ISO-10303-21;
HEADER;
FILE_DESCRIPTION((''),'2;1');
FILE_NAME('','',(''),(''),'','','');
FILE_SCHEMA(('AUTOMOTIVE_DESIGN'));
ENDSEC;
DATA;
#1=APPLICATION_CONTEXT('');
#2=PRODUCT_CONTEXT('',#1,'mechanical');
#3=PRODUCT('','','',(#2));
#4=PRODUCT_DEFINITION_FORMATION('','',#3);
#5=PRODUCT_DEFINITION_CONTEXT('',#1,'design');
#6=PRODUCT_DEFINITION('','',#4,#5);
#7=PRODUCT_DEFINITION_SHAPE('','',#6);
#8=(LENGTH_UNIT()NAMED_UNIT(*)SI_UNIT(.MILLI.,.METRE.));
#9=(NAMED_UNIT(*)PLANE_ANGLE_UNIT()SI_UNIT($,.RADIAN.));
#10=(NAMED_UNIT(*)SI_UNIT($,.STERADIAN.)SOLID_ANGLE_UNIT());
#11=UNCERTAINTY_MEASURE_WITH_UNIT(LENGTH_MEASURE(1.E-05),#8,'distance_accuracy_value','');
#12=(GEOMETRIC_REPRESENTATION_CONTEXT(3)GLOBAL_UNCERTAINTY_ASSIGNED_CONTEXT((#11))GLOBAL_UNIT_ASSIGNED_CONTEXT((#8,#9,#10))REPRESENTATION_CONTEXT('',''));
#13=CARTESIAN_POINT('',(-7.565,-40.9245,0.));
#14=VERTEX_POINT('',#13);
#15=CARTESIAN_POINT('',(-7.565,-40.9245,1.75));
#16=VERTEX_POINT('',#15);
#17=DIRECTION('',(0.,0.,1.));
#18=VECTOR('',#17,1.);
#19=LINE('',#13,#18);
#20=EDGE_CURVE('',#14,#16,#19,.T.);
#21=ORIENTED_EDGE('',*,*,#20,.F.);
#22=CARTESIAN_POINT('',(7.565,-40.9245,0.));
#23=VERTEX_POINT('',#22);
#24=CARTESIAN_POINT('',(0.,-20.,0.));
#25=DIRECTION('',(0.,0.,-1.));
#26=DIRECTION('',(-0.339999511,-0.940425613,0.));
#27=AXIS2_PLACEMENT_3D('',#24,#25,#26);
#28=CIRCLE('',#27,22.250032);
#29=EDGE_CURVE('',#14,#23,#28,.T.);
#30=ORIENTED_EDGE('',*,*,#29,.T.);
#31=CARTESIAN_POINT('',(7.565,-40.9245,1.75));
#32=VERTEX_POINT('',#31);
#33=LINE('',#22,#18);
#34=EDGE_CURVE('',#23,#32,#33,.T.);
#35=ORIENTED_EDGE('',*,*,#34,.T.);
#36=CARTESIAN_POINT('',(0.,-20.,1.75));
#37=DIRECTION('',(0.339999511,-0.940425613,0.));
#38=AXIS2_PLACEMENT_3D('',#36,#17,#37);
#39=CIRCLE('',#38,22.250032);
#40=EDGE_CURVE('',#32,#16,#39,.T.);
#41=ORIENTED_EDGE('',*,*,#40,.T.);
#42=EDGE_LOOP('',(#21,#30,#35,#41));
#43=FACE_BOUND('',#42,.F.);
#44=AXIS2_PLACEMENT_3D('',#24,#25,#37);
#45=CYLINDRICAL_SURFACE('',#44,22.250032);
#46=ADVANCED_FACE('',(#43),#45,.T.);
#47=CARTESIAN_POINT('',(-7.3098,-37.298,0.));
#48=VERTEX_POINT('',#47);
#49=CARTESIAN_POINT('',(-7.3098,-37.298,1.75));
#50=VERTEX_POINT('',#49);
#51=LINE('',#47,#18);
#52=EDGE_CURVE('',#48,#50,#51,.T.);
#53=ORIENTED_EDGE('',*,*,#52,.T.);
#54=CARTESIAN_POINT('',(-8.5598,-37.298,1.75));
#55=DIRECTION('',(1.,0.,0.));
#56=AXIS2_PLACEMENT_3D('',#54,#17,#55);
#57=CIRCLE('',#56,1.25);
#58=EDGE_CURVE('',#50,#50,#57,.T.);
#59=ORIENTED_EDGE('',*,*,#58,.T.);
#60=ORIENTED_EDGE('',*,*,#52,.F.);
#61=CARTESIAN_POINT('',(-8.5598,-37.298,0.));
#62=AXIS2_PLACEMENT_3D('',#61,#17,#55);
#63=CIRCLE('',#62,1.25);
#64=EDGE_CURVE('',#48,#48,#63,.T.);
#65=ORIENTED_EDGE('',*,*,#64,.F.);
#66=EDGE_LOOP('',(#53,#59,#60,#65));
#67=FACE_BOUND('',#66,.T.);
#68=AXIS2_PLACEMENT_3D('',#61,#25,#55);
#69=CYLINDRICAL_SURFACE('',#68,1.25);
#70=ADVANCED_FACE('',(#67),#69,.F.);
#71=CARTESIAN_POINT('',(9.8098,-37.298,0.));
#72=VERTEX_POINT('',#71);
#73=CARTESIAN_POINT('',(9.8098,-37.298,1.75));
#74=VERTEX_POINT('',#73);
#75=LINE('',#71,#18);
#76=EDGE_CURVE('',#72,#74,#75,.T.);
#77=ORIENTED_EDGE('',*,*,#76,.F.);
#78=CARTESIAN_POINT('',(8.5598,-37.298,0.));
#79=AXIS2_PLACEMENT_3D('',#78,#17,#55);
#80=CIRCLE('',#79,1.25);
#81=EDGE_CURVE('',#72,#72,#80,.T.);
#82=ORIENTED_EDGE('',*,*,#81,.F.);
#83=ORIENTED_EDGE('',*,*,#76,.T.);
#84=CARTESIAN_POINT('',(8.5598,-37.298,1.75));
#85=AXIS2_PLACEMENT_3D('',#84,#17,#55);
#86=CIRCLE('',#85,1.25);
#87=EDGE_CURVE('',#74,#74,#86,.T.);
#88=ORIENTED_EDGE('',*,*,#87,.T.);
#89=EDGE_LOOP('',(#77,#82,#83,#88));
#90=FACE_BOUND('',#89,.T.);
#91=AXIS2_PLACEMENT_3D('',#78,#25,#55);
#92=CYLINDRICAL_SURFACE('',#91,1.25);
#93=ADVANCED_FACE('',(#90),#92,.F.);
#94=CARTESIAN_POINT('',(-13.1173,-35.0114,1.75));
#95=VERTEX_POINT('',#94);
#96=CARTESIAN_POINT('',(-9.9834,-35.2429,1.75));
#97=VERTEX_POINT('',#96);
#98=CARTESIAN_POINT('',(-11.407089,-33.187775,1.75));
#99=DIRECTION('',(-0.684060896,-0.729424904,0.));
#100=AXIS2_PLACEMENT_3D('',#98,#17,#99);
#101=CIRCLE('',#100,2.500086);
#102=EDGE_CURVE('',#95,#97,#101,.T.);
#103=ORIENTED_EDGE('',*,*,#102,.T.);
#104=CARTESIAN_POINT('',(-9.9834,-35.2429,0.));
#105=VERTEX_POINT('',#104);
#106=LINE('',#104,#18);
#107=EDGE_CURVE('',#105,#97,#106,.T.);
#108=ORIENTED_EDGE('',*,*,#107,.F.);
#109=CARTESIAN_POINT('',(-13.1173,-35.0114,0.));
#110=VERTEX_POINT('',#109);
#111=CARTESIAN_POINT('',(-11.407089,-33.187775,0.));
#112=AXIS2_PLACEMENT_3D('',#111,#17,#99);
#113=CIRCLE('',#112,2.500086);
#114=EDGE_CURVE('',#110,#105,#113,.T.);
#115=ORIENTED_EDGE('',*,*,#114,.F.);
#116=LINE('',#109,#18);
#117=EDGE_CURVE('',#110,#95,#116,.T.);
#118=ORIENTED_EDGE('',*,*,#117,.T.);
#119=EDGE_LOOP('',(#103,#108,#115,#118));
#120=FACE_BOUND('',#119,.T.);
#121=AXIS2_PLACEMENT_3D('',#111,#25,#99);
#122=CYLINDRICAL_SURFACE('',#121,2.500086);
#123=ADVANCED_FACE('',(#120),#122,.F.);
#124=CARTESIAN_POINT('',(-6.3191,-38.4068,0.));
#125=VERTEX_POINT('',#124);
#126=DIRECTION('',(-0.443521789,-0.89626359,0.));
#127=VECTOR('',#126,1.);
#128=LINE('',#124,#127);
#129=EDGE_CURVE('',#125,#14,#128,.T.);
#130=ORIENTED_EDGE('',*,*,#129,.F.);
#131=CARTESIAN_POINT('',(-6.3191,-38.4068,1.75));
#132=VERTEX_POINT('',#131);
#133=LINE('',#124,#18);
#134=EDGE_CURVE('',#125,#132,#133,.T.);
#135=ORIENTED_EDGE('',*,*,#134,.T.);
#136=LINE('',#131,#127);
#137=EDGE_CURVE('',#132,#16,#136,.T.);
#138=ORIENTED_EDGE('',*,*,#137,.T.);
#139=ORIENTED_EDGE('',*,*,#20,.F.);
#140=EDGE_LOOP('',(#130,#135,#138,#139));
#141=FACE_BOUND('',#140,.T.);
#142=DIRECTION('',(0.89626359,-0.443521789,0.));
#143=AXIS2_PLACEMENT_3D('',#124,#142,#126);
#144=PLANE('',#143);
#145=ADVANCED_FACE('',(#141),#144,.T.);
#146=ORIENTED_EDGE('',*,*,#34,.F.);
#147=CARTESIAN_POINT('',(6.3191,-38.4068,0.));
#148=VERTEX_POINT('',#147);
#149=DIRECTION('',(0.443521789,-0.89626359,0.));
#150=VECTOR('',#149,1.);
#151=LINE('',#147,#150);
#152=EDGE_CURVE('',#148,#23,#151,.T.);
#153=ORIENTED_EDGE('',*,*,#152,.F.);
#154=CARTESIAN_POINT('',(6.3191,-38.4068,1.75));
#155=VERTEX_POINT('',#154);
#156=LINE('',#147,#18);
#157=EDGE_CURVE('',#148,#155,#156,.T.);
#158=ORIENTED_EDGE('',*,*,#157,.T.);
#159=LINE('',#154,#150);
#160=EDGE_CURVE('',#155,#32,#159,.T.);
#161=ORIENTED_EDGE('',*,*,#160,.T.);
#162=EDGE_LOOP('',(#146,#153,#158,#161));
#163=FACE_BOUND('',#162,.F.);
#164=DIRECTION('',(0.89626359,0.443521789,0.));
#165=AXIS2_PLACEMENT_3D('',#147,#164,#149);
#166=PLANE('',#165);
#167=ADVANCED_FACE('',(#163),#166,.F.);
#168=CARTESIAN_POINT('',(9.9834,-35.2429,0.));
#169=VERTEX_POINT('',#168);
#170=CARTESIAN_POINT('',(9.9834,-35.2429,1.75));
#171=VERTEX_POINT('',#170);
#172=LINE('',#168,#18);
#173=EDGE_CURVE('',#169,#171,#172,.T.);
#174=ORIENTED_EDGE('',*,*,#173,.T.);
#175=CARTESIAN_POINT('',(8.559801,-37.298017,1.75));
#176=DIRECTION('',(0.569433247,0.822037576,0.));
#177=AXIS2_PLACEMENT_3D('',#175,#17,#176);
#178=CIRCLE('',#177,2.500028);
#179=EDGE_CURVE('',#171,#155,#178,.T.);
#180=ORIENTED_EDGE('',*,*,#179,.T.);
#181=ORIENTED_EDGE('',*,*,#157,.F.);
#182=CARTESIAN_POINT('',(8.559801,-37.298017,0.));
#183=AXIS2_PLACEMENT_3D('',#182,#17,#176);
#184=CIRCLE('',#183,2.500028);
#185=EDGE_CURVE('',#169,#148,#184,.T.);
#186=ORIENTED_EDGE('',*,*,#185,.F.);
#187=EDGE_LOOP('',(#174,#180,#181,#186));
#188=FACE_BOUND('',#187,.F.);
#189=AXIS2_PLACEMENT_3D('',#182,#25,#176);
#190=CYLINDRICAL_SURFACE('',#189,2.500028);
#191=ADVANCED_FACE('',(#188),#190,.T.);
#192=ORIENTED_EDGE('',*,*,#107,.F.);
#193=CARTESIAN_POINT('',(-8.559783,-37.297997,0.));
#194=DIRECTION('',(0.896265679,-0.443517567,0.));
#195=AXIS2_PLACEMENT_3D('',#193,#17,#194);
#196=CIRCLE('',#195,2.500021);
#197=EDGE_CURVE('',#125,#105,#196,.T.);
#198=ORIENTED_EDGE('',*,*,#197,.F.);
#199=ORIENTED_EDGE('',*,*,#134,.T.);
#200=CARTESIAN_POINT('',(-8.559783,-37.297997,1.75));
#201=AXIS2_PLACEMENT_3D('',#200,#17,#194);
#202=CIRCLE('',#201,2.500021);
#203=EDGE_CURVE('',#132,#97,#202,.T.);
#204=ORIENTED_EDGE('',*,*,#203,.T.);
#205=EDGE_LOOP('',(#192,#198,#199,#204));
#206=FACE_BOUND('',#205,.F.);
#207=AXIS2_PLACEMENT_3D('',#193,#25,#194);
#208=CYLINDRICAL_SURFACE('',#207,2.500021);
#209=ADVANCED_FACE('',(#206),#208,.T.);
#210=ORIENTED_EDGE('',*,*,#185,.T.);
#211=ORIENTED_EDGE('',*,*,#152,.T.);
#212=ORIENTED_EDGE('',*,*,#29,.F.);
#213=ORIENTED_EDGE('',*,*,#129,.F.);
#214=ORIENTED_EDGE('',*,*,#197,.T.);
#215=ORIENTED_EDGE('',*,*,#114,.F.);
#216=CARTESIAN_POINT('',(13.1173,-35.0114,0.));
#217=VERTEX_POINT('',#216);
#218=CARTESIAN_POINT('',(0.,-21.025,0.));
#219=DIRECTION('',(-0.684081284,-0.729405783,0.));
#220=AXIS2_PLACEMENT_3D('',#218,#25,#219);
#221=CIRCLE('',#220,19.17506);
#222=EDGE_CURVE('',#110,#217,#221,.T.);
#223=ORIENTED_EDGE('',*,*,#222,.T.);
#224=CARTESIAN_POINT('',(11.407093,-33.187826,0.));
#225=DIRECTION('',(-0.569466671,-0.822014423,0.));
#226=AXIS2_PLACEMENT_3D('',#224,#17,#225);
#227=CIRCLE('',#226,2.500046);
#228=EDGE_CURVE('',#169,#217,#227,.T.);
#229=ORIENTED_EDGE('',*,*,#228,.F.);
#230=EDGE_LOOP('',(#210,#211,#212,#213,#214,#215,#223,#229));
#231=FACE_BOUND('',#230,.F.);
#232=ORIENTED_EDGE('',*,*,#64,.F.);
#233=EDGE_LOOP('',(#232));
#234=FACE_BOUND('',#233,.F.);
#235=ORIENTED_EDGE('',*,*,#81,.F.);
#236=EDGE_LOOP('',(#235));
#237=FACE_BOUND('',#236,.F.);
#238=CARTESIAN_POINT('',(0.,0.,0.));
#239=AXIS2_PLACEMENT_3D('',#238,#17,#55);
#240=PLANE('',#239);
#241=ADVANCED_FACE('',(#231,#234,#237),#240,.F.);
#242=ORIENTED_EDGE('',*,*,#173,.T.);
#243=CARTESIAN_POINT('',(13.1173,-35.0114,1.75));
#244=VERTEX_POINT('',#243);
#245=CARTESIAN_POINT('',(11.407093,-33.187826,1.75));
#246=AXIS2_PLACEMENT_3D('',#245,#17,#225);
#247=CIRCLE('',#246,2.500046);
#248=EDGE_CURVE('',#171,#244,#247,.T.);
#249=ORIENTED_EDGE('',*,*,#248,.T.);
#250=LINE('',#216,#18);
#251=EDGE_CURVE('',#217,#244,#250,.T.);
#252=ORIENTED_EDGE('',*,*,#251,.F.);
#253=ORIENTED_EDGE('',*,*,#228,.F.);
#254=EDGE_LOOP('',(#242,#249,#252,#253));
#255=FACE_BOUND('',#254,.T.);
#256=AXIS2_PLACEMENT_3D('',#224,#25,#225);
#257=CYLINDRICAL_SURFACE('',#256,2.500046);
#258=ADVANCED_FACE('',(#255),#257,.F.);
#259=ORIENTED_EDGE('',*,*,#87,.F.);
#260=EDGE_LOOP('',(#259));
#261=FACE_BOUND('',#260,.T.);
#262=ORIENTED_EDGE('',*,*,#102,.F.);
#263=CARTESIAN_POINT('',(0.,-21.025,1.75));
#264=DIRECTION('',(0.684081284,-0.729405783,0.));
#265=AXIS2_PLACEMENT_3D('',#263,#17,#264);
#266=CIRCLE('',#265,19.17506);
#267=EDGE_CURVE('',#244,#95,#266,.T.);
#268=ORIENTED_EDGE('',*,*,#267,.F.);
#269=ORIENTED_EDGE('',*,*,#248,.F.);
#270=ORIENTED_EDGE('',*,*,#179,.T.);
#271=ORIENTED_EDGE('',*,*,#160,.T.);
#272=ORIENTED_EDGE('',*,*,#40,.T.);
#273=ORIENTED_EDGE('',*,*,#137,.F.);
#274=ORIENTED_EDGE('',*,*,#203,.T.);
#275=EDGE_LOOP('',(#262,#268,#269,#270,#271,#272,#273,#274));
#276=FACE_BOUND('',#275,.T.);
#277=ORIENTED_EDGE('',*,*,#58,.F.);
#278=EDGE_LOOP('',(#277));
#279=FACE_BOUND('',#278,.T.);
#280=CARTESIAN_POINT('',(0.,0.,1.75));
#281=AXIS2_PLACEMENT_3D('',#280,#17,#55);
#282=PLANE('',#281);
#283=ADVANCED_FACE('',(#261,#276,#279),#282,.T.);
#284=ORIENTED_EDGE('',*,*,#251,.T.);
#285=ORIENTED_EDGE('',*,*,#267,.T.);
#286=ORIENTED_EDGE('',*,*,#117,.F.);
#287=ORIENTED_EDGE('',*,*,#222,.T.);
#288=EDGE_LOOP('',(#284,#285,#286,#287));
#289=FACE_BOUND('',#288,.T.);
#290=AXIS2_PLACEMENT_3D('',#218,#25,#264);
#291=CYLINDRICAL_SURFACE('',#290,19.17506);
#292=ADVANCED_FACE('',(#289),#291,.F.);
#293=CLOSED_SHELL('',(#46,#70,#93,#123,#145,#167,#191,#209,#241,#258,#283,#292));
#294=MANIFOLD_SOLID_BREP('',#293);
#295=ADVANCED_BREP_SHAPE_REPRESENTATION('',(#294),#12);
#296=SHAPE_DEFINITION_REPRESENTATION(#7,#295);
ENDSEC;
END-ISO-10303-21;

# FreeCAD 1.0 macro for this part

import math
import FreeCAD as App
import Part
import Sketcher

V = App.Vector
Q = App.Units.Quantity

doc = App.newDocument("Part")
params = doc.addObject("Spreadsheet::Sheet", "Params")
for row, (alias, value) in enumerate([
    ("sketch1_diameter", "2.5 mm"),
    ("sketch1_radius", "2.5 mm"),
    ("sketch1_radius2", "22.25 mm"),
    ("pad1_length", "1.75 mm"),
], start=1):
    params.set(f"A{row}", alias)
    params.set(f"B{row}", "=" + value)
    params.setAlias(f"B{row}", alias)

body = doc.addObject("PartDesign::Body", "Body")

# Sketch on XY plane
sketch1 = body.newObject("Sketcher::SketchObject", "Sketch")
sketch1.AttachmentSupport = (doc.getObject("XY_Plane"), [""])
sketch1.MapMode = "FlatFace"
sketch1.addGeometry(Part.ArcOfCircle(Part.Circle(V(11.4071, -33.1878, 0), V(0, 0, 1), 2.500072), math.radians(-124.712837), math.radians(-46.837997)), False)
sketch1.addGeometry(Part.ArcOfCircle(Part.Circle(V(8.5598, -37.298, 0), V(0, 0, 1), 2.500015), math.radians(55.289047), math.radians(206.328293)), False)
sketch1.addGeometry(Part.LineSegment(V(6.3191, -38.4068, 0), V(7.565, -40.9245, 0)), False)
sketch1.addGeometry(Part.ArcOfCircle(Part.Circle(V(0, -20, 0), V(0, 0, 1), 22.250032), math.radians(-70.123156), math.radians(250.123156)), False)
sketch1.addGeometry(Part.LineSegment(V(-7.565, -40.9245, 0), V(-6.3191, -38.4068, 0)), False)
sketch1.addGeometry(Part.ArcOfCircle(Part.Circle(V(-8.5598, -37.298, 0), V(0, 0, 1), 2.500035), math.radians(-26.328293), math.radians(124.710953)), False)
sketch1.addGeometry(Part.ArcOfCircle(Part.Circle(V(-11.4071, -33.1878, 0), V(0, 0, 1), 2.50006), math.radians(-133.162003), math.radians(-55.287163)), False)
sketch1.addGeometry(Part.ArcOfCircle(Part.Circle(V(0, -21.025, 0), V(0, 0, 1), 19.17506), math.radians(-46.836602), math.radians(226.836602)), False)
sketch1.addGeometry(Part.Circle(V(8.5598, -37.298, 0), V(0, 0, 1), 1.25), False)
sketch1.addGeometry(Part.Circle(V(-8.5598, -37.298, 0), V(0, 0, 1), 1.25), False)
sketch1.addConstraint(Sketcher.Constraint("Tangent", 0, 1, 1, 1))
sketch1.addConstraint(Sketcher.Constraint("Tangent", 1, 2, 2, 1))
sketch1.addConstraint(Sketcher.Constraint("Coincident", 2, 2, 3, 1))
sketch1.addConstraint(Sketcher.Constraint("Coincident", 3, 2, 4, 1))
sketch1.addConstraint(Sketcher.Constraint("Tangent", 4, 2, 5, 1))
sketch1.addConstraint(Sketcher.Constraint("Tangent", 5, 2, 6, 2))
sketch1.addConstraint(Sketcher.Constraint("Tangent", 6, 1, 7, 2))
sketch1.addConstraint(Sketcher.Constraint("Tangent", 7, 1, 0, 2))
sketch1.addConstraint(Sketcher.Constraint("Coincident", 8, 3, 1, 3))
sketch1.addConstraint(Sketcher.Constraint("Coincident", 9, 3, 5, 3))
sketch1.addConstraint(Sketcher.Constraint("Equal", 0, 1))
sketch1.addConstraint(Sketcher.Constraint("Equal", 1, 5))
sketch1.addConstraint(Sketcher.Constraint("Equal", 5, 6))
sketch1.addConstraint(Sketcher.Constraint("Equal", 8, 9))
sketch1.addConstraint(Sketcher.Constraint("Symmetric", 1, 3, 5, 3, -2))
sketch1.addConstraint(Sketcher.Constraint("Symmetric", 2, 2, 3, 2, -2))
sketch1.addConstraint(Sketcher.Constraint("PointOnObject", 7, 3, -2))
sketch1.addConstraint(Sketcher.Constraint("Diameter", 8, Q("2.5 mm")))
sketch1.addConstraint(Sketcher.Constraint("Radius", 0, Q("2.5 mm")))
sketch1.addConstraint(Sketcher.Constraint("Radius", 3, Q("22.25 mm")))
sketch1.addConstraint(Sketcher.Constraint("DistanceY", 3, 3, -1, 1, Q("20 mm")))
sketch1.addConstraint(Sketcher.Constraint("DistanceX", -1, 1, 2, 2, Q("7.565 mm")))
sketch1.addConstraint(Sketcher.Constraint("Radius", 7, Q("19.175 mm")))
sketch1.addConstraint(Sketcher.Constraint("DistanceY", 7, 3, 3, 3, Q("1.025 mm")))
sketch1.addConstraint(Sketcher.Constraint("Angle", 2, Q("-63.6712 deg")))
sketch1.addConstraint(Sketcher.Constraint("Distance", 2, Q("2.809 mm")))
sketch1.setExpression("Constraints[17]", "Params.sketch1_diameter")
sketch1.setExpression("Constraints[18]", "Params.sketch1_radius")
sketch1.setExpression("Constraints[19]", "Params.sketch1_radius2")
pad1 = body.newObject("PartDesign::Pad", "Pad")
pad1.Profile = sketch1
pad1.setExpression("Length", "Params.pad1_length")

doc.recompute()
